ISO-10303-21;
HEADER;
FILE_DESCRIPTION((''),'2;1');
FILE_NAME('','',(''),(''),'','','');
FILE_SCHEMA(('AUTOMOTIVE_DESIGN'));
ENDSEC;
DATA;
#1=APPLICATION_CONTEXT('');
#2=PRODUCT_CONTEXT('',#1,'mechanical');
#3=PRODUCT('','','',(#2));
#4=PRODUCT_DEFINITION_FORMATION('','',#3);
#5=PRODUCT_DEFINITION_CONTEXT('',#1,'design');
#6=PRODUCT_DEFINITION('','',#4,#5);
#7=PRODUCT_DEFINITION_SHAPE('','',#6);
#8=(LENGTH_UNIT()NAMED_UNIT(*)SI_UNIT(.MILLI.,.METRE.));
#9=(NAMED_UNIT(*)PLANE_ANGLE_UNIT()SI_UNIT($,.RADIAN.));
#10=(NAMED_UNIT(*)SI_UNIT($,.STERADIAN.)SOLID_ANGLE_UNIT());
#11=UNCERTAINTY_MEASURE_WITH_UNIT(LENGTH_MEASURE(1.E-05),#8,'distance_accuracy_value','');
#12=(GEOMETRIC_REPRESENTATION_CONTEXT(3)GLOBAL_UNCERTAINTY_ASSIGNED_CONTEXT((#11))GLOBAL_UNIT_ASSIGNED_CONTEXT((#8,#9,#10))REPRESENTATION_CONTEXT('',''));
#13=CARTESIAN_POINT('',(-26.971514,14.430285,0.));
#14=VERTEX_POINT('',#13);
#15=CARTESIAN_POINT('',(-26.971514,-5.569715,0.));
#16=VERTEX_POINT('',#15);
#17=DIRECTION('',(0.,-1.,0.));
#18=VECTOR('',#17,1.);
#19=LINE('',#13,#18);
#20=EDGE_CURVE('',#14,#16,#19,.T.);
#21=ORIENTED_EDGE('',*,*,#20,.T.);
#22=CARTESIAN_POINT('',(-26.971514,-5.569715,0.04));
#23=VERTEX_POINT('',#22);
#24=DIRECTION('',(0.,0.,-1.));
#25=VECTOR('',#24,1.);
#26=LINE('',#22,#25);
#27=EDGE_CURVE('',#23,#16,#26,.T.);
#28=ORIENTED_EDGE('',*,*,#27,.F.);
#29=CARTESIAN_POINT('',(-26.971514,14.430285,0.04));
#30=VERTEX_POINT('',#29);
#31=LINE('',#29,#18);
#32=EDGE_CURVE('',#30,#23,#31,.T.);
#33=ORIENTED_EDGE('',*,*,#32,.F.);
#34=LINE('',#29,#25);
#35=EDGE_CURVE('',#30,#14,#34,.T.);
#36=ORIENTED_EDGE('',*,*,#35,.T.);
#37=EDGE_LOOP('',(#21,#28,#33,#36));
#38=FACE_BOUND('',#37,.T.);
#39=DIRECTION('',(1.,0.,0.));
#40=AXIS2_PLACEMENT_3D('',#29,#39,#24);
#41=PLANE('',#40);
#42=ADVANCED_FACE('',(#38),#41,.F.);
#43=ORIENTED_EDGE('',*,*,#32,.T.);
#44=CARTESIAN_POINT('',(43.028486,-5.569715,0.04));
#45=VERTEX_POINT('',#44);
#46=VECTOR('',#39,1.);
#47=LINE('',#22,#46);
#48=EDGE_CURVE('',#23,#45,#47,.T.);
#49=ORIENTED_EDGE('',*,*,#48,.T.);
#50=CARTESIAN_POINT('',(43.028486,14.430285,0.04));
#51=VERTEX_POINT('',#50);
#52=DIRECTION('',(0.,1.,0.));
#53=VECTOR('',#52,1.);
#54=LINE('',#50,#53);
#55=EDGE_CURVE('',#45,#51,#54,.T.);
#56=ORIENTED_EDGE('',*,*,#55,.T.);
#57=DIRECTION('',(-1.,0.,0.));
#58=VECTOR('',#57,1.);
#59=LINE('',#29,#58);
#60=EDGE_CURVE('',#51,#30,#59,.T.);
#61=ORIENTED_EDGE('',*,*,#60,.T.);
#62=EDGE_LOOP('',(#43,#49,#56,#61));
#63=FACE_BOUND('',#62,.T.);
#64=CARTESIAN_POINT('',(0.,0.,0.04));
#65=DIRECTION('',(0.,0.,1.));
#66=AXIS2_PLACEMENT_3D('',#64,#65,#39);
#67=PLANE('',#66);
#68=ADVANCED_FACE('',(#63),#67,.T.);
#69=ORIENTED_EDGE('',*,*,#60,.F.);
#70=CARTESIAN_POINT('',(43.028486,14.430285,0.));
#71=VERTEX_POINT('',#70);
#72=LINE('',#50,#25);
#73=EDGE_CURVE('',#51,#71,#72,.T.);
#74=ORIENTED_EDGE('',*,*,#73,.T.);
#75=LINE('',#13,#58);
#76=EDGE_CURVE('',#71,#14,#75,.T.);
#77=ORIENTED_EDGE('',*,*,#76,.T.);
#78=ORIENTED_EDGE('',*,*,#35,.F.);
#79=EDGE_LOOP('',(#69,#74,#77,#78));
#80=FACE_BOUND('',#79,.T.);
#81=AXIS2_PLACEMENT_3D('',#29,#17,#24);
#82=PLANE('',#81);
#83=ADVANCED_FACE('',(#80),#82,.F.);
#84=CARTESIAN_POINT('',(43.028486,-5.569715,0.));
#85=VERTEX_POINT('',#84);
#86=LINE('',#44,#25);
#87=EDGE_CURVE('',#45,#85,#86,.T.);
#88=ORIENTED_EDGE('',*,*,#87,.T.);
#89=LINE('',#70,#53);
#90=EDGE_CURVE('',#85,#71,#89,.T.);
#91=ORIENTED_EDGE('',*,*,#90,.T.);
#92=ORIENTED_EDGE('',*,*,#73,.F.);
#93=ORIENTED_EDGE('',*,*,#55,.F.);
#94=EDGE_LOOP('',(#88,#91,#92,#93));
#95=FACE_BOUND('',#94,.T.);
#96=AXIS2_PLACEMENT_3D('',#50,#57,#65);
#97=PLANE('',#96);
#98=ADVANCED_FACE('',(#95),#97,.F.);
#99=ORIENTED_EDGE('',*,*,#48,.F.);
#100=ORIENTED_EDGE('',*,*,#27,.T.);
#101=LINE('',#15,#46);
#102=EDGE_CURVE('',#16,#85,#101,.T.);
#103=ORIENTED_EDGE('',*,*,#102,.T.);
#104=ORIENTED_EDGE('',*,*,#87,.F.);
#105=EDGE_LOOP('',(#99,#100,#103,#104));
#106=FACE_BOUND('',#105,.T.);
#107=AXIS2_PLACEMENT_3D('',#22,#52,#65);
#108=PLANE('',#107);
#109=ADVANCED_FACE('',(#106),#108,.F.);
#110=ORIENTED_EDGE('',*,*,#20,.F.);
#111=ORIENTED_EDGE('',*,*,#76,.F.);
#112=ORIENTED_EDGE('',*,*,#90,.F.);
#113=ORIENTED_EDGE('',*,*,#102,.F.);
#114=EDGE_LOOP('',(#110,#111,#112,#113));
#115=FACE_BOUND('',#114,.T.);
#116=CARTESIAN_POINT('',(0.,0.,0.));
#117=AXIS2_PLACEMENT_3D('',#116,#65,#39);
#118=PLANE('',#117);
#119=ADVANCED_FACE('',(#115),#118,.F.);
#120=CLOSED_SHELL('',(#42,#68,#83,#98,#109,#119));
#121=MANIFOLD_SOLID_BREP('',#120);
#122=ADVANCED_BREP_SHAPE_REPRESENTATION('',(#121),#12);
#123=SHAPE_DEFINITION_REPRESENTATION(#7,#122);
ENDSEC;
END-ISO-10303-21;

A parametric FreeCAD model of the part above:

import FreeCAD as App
import Part
import Sketcher
from FreeCAD import Vector
Q = App.Units.Quantity

doc = App.newDocument("Part")
body = doc.addObject("PartDesign::Body", "Body")

# Sketch on XY plane
sketch1 = body.newObject("Sketcher::SketchObject", "Sketch")
sketch1.AttachmentSupport = (doc.getObject("XY_Plane"), [""])
sketch1.MapMode = "FlatFace"
sketch1.addGeometry([
    Part.LineSegment(Vector(-27, 14, 0), Vector(-27, -6, 0)),
    Part.LineSegment(Vector(-27, -6, 0), Vector(43, -6, 0)),
    Part.LineSegment(Vector(43, -6, 0), Vector(43, 14, 0)),
    Part.LineSegment(Vector(43, 14, 0), Vector(-27, 14, 0)),
], False)
sketch1.addConstraint([
    Sketcher.Constraint("Coincident", 0, 2, 1, 1),
    Sketcher.Constraint("Coincident", 1, 2, 2, 1),
    Sketcher.Constraint("Coincident", 2, 2, 3, 1),
    Sketcher.Constraint("Coincident", 3, 2, 0, 1),
    Sketcher.Constraint("Vertical", 0),
    Sketcher.Constraint("Horizontal", 1),
    Sketcher.Constraint("Vertical", 2),
    Sketcher.Constraint("Horizontal", 3),
    Sketcher.Constraint("DistanceX", 1, 1, 1, 2, Q("70 mm")),
    Sketcher.Constraint("DistanceY", 0, 2, 0, 1, Q("20 mm")),
    Sketcher.Constraint("DistanceX", 0, 2, -1, 1, Q("26.971514 mm")),
    Sketcher.Constraint("DistanceY", 0, 2, -1, 1, Q("5.569715 mm")),
])
pad1 = body.newObject("PartDesign::Pad", "Pad")
pad1.Profile = sketch1
pad1.Length = 0.04

doc.recompute()
